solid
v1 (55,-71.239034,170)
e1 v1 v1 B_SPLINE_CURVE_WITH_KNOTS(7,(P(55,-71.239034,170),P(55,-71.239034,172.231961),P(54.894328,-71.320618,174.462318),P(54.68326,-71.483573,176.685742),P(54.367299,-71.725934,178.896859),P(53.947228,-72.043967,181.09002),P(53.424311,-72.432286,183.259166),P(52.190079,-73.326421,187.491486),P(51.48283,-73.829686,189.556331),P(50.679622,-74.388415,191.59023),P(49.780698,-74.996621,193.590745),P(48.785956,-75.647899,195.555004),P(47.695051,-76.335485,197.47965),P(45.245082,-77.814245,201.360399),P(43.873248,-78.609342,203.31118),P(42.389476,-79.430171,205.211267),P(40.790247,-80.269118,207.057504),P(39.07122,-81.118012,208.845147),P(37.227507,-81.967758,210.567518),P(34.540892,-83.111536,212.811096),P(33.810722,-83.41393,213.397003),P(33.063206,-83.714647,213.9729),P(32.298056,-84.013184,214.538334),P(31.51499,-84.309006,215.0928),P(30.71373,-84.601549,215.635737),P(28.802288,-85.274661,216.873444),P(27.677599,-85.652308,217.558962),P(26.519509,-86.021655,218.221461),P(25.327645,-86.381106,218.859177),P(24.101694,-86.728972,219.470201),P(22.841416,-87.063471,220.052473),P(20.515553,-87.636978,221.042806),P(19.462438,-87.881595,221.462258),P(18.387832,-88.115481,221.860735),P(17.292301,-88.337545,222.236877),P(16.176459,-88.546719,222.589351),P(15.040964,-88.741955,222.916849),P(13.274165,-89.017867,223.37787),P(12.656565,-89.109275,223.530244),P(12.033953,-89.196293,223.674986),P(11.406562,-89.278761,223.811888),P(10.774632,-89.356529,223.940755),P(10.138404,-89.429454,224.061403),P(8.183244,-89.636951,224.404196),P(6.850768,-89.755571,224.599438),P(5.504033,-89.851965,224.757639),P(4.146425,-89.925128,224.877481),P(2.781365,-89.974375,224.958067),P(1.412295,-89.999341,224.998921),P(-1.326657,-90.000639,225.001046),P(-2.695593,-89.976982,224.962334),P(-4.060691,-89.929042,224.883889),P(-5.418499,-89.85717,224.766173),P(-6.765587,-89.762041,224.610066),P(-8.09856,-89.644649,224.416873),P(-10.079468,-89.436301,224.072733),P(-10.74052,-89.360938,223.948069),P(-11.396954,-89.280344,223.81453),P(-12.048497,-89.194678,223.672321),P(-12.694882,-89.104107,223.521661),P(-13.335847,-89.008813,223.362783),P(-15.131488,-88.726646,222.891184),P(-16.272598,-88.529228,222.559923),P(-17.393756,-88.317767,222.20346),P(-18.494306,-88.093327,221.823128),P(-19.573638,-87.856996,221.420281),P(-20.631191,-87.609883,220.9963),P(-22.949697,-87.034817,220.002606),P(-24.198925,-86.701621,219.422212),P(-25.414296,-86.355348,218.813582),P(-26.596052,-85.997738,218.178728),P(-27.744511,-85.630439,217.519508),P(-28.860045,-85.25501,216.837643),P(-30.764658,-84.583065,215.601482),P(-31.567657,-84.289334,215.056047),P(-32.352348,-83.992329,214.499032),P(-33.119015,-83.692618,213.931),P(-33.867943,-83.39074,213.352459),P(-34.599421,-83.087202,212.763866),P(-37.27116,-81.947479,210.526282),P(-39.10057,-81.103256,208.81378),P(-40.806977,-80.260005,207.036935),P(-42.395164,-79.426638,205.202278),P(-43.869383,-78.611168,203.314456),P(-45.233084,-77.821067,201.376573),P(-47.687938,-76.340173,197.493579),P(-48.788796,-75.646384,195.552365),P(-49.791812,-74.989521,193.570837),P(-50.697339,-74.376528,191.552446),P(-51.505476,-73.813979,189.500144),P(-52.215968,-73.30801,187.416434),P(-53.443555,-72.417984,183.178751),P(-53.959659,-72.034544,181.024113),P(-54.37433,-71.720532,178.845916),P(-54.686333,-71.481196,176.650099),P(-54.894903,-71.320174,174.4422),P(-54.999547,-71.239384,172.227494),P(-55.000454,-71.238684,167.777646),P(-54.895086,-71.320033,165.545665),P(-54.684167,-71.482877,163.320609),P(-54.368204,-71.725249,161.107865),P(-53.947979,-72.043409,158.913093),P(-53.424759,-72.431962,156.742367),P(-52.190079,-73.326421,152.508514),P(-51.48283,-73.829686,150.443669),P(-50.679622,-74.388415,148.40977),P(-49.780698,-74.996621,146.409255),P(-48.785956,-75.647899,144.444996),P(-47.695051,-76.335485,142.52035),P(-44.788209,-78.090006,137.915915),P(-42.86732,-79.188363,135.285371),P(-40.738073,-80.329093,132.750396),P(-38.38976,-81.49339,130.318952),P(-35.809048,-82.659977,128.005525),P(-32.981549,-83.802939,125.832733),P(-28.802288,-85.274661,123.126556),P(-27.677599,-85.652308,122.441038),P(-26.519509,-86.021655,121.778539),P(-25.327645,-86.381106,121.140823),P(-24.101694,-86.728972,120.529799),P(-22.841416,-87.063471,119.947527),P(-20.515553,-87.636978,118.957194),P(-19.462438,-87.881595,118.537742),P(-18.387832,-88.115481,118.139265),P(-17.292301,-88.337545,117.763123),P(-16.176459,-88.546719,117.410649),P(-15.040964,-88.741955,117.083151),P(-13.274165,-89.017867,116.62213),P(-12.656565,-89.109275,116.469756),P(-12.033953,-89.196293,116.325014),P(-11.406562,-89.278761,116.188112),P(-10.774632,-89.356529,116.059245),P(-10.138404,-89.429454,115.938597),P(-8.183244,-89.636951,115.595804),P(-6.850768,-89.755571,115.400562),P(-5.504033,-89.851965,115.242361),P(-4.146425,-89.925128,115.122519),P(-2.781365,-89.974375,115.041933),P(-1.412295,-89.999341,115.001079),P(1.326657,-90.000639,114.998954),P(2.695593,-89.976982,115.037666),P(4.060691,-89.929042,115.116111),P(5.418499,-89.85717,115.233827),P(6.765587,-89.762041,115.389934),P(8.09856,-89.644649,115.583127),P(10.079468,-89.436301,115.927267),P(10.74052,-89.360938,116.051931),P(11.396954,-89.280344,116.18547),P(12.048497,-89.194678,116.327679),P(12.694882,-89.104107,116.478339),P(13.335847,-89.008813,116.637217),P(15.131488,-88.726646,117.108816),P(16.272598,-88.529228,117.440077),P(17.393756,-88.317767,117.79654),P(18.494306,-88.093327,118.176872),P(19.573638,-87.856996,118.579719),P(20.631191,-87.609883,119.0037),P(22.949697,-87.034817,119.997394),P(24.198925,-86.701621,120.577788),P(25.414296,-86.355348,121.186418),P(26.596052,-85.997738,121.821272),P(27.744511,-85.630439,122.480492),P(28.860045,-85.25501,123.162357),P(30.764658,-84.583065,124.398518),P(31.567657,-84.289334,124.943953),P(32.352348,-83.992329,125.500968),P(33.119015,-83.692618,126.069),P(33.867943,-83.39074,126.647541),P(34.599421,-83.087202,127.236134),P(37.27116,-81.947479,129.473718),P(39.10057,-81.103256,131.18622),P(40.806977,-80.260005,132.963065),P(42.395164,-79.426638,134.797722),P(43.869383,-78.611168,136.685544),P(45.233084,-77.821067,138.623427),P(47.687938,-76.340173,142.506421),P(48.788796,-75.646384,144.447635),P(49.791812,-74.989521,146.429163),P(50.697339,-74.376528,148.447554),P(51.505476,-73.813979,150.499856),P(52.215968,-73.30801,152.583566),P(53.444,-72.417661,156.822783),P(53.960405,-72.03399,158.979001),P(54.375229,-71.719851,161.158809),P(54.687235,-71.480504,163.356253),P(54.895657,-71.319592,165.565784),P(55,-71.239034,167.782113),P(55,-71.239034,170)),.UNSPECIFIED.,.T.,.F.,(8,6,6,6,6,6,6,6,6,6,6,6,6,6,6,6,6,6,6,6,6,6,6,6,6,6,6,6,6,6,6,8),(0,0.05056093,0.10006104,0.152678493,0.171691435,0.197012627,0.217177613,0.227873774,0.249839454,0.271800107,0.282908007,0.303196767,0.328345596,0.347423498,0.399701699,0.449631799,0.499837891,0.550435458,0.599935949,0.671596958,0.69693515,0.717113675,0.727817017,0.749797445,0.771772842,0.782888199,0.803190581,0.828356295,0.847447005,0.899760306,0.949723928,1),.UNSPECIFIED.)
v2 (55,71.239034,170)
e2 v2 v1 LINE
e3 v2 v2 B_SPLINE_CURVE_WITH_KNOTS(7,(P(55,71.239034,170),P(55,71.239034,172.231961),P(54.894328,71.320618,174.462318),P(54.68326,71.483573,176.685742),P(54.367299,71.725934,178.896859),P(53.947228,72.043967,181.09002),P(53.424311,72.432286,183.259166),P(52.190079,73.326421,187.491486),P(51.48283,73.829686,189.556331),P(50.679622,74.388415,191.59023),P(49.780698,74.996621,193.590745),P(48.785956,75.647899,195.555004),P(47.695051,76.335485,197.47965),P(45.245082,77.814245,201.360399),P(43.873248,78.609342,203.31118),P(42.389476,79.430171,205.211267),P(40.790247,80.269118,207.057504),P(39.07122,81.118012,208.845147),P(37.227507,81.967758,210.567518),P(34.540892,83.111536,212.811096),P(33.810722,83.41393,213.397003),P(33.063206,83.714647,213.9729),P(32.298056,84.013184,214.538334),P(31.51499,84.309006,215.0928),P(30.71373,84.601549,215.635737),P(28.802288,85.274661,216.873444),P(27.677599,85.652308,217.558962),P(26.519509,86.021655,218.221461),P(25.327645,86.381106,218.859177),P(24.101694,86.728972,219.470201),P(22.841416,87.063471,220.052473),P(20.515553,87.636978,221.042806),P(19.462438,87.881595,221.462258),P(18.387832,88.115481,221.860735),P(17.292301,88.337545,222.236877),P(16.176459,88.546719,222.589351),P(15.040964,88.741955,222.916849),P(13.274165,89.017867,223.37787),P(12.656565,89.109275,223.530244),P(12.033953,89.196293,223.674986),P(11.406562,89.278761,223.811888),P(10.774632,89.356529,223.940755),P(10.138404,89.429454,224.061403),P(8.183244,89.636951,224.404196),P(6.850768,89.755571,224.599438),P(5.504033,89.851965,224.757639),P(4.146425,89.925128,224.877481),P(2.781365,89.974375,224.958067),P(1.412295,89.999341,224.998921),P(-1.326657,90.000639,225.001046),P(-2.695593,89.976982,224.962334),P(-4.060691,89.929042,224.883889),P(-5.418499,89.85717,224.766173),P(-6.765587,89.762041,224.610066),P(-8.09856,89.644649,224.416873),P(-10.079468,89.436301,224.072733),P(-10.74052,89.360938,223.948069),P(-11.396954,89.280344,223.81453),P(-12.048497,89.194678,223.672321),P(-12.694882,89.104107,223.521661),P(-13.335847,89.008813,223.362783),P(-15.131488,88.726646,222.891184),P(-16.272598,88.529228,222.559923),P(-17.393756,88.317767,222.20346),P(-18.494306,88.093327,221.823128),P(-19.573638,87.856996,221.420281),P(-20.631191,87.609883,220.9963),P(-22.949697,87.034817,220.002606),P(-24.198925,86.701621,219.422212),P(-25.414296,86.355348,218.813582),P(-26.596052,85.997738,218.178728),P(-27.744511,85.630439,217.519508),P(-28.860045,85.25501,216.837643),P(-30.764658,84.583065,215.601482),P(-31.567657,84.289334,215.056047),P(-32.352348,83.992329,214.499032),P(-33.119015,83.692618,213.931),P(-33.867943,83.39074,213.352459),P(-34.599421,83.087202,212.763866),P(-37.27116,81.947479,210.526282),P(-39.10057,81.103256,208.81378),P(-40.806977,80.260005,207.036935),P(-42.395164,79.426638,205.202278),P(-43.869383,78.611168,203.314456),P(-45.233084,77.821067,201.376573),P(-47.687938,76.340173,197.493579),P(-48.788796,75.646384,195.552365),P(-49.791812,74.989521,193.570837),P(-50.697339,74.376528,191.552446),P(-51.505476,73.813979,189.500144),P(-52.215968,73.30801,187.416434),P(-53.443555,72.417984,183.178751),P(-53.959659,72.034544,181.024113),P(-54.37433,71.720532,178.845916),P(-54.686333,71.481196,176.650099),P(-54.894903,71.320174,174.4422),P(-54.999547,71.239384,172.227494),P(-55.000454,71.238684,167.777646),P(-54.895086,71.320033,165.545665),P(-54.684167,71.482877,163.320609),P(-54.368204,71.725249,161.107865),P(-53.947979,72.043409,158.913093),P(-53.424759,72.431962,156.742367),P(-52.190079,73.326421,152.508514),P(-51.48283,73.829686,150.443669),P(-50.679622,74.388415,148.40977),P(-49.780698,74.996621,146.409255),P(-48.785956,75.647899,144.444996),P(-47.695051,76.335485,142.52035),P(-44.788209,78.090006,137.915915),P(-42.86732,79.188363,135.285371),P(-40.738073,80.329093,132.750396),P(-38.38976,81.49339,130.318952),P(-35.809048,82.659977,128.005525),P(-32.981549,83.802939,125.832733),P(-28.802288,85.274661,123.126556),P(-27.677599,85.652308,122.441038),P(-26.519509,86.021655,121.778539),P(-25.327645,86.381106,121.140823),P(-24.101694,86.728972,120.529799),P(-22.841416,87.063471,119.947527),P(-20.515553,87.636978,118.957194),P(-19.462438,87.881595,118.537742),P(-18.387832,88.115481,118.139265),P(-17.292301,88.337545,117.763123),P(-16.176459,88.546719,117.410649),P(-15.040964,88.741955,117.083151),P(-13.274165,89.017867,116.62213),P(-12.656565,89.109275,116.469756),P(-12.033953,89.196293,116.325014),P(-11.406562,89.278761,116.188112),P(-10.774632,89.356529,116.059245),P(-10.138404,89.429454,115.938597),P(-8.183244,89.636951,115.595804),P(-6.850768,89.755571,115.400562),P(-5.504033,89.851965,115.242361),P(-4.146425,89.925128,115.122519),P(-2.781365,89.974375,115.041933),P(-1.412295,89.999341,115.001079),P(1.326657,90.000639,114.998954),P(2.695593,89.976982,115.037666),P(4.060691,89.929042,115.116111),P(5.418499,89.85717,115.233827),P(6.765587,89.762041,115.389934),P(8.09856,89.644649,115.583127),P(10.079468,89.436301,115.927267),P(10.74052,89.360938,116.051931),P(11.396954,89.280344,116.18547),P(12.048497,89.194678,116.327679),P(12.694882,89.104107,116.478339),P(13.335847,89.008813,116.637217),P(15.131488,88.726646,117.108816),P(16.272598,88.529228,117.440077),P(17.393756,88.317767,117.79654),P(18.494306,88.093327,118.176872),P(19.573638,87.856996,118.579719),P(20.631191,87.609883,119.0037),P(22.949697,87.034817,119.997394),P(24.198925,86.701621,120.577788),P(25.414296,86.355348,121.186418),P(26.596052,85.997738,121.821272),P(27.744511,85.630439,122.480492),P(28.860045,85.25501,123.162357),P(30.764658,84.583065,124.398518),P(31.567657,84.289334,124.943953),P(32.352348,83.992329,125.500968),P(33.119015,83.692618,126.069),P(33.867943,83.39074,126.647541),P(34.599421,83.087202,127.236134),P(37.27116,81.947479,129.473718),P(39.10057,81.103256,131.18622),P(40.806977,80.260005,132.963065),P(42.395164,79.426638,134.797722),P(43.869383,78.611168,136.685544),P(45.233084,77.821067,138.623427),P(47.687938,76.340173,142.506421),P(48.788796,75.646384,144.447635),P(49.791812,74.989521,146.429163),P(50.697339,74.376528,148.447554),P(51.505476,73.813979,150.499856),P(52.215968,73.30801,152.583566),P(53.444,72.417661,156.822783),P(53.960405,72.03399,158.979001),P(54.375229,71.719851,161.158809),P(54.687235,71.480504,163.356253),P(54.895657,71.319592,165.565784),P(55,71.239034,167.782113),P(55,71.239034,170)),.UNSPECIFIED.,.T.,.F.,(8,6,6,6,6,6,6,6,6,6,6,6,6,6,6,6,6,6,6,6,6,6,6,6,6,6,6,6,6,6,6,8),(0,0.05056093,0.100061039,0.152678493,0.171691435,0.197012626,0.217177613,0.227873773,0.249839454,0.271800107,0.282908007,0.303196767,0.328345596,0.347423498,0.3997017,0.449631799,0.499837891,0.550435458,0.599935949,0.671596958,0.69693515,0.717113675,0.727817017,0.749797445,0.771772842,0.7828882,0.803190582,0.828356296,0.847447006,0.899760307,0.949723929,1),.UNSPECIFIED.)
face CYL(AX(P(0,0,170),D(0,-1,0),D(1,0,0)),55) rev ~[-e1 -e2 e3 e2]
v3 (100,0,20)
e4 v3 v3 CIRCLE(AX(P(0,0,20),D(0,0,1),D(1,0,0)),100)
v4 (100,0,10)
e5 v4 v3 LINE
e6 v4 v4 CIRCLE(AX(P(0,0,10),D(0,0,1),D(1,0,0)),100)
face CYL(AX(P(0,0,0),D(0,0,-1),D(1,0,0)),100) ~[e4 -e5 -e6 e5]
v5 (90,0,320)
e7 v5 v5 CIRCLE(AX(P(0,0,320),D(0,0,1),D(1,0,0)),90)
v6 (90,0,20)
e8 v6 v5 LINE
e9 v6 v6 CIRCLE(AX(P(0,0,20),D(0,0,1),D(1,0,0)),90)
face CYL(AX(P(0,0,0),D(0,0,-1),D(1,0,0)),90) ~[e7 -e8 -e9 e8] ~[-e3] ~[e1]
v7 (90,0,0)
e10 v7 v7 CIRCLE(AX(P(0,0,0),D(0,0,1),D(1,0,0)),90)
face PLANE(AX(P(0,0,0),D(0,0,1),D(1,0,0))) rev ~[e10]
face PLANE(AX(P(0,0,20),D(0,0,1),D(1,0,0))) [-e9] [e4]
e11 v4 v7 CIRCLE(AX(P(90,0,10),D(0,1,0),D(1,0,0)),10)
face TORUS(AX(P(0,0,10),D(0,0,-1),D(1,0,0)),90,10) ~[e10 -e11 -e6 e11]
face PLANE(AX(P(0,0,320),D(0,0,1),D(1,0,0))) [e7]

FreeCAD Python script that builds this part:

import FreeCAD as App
import Part
import Sketcher
from FreeCAD import Vector
Q = App.Units.Quantity


def edges_at(feature, points):
    """Names of the edges that pass closest to the given points."""
    edges = feature.Shape.Edges
    near = lambda p: min(range(len(edges)), key=lambda i: edges[i].distToShape(Part.Vertex(*p))[0])
    return sorted({f"Edge{near(p) + 1}" for p in points})

doc = App.newDocument("Part")
body = doc.addObject("PartDesign::Body", "Body")

# Sketch on XY plane
sketch1 = body.newObject("Sketcher::SketchObject", "Sketch")
sketch1.AttachmentSupport = (doc.getObject("XY_Plane"), [""])
sketch1.MapMode = "FlatFace"
sketch1.addGeometry(Part.Circle(Vector(0, 0, 0), Vector(0, 0, 1), 100), False)
sketch1.addGeometry(Part.Circle(Vector(0, 0, 0), Vector(0, 0, 1), 90), False)
sketch1.addConstraint(Sketcher.Constraint("Coincident", 0, 3, -1, 1))
sketch1.addConstraint(Sketcher.Constraint("Coincident", 1, 3, -1, 1))
sketch1.addConstraint(Sketcher.Constraint("Diameter", 0, Q("200 mm")))
sketch1.addConstraint(Sketcher.Constraint("Diameter", 1, Q("180 mm")))
pad1 = body.newObject("PartDesign::Pad", "Pad")
pad1.Profile = sketch1
pad1.Length = 20

# Sketch on XY plane
sketch2 = body.newObject("Sketcher::SketchObject", "Sketch001")
sketch2.AttachmentSupport = (doc.getObject("XY_Plane"), [""])
sketch2.MapMode = "FlatFace"
sketch2.addGeometry(Part.Circle(Vector(0, 0, 0), Vector(0, 0, 1), 90), False)
sketch2.addConstraint(Sketcher.Constraint("Coincident", 0, 3, -1, 1))
sketch2.addConstraint(Sketcher.Constraint("Diameter", 0, Q("180 mm")))
pad2 = body.newObject("PartDesign::Pad", "Pad001")
pad2.Profile = sketch2
pad2.Length = 320

# Sketch on XZ plane
sketch3 = body.newObject("Sketcher::SketchObject", "Sketch002")
sketch3.AttachmentSupport = (doc.getObject("XZ_Plane"), [""])
sketch3.MapMode = "FlatFace"
sketch3.addGeometry(Part.Circle(Vector(0, 170, 0), Vector(0, 0, 1), 55), False)
sketch3.addConstraint(Sketcher.Constraint("PointOnObject", 0, 3, -2))
sketch3.addConstraint(Sketcher.Constraint("Diameter", 0, Q("110 mm")))
sketch3.addConstraint(Sketcher.Constraint("DistanceY", -1, 1, 0, 3, Q("170 mm")))
pocket1 = body.newObject("PartDesign::Pocket", "Pocket")
pocket1.Profile = sketch3
pocket1.Length = 294
pocket1.Midplane = True
doc.recompute()

fillet = body.newObject("PartDesign::Fillet", "Fillet")
fillet.Base = (pocket1, edges_at(pocket1, [(-100, 0, 0)]))
fillet.Radius = 10

doc.recompute()
